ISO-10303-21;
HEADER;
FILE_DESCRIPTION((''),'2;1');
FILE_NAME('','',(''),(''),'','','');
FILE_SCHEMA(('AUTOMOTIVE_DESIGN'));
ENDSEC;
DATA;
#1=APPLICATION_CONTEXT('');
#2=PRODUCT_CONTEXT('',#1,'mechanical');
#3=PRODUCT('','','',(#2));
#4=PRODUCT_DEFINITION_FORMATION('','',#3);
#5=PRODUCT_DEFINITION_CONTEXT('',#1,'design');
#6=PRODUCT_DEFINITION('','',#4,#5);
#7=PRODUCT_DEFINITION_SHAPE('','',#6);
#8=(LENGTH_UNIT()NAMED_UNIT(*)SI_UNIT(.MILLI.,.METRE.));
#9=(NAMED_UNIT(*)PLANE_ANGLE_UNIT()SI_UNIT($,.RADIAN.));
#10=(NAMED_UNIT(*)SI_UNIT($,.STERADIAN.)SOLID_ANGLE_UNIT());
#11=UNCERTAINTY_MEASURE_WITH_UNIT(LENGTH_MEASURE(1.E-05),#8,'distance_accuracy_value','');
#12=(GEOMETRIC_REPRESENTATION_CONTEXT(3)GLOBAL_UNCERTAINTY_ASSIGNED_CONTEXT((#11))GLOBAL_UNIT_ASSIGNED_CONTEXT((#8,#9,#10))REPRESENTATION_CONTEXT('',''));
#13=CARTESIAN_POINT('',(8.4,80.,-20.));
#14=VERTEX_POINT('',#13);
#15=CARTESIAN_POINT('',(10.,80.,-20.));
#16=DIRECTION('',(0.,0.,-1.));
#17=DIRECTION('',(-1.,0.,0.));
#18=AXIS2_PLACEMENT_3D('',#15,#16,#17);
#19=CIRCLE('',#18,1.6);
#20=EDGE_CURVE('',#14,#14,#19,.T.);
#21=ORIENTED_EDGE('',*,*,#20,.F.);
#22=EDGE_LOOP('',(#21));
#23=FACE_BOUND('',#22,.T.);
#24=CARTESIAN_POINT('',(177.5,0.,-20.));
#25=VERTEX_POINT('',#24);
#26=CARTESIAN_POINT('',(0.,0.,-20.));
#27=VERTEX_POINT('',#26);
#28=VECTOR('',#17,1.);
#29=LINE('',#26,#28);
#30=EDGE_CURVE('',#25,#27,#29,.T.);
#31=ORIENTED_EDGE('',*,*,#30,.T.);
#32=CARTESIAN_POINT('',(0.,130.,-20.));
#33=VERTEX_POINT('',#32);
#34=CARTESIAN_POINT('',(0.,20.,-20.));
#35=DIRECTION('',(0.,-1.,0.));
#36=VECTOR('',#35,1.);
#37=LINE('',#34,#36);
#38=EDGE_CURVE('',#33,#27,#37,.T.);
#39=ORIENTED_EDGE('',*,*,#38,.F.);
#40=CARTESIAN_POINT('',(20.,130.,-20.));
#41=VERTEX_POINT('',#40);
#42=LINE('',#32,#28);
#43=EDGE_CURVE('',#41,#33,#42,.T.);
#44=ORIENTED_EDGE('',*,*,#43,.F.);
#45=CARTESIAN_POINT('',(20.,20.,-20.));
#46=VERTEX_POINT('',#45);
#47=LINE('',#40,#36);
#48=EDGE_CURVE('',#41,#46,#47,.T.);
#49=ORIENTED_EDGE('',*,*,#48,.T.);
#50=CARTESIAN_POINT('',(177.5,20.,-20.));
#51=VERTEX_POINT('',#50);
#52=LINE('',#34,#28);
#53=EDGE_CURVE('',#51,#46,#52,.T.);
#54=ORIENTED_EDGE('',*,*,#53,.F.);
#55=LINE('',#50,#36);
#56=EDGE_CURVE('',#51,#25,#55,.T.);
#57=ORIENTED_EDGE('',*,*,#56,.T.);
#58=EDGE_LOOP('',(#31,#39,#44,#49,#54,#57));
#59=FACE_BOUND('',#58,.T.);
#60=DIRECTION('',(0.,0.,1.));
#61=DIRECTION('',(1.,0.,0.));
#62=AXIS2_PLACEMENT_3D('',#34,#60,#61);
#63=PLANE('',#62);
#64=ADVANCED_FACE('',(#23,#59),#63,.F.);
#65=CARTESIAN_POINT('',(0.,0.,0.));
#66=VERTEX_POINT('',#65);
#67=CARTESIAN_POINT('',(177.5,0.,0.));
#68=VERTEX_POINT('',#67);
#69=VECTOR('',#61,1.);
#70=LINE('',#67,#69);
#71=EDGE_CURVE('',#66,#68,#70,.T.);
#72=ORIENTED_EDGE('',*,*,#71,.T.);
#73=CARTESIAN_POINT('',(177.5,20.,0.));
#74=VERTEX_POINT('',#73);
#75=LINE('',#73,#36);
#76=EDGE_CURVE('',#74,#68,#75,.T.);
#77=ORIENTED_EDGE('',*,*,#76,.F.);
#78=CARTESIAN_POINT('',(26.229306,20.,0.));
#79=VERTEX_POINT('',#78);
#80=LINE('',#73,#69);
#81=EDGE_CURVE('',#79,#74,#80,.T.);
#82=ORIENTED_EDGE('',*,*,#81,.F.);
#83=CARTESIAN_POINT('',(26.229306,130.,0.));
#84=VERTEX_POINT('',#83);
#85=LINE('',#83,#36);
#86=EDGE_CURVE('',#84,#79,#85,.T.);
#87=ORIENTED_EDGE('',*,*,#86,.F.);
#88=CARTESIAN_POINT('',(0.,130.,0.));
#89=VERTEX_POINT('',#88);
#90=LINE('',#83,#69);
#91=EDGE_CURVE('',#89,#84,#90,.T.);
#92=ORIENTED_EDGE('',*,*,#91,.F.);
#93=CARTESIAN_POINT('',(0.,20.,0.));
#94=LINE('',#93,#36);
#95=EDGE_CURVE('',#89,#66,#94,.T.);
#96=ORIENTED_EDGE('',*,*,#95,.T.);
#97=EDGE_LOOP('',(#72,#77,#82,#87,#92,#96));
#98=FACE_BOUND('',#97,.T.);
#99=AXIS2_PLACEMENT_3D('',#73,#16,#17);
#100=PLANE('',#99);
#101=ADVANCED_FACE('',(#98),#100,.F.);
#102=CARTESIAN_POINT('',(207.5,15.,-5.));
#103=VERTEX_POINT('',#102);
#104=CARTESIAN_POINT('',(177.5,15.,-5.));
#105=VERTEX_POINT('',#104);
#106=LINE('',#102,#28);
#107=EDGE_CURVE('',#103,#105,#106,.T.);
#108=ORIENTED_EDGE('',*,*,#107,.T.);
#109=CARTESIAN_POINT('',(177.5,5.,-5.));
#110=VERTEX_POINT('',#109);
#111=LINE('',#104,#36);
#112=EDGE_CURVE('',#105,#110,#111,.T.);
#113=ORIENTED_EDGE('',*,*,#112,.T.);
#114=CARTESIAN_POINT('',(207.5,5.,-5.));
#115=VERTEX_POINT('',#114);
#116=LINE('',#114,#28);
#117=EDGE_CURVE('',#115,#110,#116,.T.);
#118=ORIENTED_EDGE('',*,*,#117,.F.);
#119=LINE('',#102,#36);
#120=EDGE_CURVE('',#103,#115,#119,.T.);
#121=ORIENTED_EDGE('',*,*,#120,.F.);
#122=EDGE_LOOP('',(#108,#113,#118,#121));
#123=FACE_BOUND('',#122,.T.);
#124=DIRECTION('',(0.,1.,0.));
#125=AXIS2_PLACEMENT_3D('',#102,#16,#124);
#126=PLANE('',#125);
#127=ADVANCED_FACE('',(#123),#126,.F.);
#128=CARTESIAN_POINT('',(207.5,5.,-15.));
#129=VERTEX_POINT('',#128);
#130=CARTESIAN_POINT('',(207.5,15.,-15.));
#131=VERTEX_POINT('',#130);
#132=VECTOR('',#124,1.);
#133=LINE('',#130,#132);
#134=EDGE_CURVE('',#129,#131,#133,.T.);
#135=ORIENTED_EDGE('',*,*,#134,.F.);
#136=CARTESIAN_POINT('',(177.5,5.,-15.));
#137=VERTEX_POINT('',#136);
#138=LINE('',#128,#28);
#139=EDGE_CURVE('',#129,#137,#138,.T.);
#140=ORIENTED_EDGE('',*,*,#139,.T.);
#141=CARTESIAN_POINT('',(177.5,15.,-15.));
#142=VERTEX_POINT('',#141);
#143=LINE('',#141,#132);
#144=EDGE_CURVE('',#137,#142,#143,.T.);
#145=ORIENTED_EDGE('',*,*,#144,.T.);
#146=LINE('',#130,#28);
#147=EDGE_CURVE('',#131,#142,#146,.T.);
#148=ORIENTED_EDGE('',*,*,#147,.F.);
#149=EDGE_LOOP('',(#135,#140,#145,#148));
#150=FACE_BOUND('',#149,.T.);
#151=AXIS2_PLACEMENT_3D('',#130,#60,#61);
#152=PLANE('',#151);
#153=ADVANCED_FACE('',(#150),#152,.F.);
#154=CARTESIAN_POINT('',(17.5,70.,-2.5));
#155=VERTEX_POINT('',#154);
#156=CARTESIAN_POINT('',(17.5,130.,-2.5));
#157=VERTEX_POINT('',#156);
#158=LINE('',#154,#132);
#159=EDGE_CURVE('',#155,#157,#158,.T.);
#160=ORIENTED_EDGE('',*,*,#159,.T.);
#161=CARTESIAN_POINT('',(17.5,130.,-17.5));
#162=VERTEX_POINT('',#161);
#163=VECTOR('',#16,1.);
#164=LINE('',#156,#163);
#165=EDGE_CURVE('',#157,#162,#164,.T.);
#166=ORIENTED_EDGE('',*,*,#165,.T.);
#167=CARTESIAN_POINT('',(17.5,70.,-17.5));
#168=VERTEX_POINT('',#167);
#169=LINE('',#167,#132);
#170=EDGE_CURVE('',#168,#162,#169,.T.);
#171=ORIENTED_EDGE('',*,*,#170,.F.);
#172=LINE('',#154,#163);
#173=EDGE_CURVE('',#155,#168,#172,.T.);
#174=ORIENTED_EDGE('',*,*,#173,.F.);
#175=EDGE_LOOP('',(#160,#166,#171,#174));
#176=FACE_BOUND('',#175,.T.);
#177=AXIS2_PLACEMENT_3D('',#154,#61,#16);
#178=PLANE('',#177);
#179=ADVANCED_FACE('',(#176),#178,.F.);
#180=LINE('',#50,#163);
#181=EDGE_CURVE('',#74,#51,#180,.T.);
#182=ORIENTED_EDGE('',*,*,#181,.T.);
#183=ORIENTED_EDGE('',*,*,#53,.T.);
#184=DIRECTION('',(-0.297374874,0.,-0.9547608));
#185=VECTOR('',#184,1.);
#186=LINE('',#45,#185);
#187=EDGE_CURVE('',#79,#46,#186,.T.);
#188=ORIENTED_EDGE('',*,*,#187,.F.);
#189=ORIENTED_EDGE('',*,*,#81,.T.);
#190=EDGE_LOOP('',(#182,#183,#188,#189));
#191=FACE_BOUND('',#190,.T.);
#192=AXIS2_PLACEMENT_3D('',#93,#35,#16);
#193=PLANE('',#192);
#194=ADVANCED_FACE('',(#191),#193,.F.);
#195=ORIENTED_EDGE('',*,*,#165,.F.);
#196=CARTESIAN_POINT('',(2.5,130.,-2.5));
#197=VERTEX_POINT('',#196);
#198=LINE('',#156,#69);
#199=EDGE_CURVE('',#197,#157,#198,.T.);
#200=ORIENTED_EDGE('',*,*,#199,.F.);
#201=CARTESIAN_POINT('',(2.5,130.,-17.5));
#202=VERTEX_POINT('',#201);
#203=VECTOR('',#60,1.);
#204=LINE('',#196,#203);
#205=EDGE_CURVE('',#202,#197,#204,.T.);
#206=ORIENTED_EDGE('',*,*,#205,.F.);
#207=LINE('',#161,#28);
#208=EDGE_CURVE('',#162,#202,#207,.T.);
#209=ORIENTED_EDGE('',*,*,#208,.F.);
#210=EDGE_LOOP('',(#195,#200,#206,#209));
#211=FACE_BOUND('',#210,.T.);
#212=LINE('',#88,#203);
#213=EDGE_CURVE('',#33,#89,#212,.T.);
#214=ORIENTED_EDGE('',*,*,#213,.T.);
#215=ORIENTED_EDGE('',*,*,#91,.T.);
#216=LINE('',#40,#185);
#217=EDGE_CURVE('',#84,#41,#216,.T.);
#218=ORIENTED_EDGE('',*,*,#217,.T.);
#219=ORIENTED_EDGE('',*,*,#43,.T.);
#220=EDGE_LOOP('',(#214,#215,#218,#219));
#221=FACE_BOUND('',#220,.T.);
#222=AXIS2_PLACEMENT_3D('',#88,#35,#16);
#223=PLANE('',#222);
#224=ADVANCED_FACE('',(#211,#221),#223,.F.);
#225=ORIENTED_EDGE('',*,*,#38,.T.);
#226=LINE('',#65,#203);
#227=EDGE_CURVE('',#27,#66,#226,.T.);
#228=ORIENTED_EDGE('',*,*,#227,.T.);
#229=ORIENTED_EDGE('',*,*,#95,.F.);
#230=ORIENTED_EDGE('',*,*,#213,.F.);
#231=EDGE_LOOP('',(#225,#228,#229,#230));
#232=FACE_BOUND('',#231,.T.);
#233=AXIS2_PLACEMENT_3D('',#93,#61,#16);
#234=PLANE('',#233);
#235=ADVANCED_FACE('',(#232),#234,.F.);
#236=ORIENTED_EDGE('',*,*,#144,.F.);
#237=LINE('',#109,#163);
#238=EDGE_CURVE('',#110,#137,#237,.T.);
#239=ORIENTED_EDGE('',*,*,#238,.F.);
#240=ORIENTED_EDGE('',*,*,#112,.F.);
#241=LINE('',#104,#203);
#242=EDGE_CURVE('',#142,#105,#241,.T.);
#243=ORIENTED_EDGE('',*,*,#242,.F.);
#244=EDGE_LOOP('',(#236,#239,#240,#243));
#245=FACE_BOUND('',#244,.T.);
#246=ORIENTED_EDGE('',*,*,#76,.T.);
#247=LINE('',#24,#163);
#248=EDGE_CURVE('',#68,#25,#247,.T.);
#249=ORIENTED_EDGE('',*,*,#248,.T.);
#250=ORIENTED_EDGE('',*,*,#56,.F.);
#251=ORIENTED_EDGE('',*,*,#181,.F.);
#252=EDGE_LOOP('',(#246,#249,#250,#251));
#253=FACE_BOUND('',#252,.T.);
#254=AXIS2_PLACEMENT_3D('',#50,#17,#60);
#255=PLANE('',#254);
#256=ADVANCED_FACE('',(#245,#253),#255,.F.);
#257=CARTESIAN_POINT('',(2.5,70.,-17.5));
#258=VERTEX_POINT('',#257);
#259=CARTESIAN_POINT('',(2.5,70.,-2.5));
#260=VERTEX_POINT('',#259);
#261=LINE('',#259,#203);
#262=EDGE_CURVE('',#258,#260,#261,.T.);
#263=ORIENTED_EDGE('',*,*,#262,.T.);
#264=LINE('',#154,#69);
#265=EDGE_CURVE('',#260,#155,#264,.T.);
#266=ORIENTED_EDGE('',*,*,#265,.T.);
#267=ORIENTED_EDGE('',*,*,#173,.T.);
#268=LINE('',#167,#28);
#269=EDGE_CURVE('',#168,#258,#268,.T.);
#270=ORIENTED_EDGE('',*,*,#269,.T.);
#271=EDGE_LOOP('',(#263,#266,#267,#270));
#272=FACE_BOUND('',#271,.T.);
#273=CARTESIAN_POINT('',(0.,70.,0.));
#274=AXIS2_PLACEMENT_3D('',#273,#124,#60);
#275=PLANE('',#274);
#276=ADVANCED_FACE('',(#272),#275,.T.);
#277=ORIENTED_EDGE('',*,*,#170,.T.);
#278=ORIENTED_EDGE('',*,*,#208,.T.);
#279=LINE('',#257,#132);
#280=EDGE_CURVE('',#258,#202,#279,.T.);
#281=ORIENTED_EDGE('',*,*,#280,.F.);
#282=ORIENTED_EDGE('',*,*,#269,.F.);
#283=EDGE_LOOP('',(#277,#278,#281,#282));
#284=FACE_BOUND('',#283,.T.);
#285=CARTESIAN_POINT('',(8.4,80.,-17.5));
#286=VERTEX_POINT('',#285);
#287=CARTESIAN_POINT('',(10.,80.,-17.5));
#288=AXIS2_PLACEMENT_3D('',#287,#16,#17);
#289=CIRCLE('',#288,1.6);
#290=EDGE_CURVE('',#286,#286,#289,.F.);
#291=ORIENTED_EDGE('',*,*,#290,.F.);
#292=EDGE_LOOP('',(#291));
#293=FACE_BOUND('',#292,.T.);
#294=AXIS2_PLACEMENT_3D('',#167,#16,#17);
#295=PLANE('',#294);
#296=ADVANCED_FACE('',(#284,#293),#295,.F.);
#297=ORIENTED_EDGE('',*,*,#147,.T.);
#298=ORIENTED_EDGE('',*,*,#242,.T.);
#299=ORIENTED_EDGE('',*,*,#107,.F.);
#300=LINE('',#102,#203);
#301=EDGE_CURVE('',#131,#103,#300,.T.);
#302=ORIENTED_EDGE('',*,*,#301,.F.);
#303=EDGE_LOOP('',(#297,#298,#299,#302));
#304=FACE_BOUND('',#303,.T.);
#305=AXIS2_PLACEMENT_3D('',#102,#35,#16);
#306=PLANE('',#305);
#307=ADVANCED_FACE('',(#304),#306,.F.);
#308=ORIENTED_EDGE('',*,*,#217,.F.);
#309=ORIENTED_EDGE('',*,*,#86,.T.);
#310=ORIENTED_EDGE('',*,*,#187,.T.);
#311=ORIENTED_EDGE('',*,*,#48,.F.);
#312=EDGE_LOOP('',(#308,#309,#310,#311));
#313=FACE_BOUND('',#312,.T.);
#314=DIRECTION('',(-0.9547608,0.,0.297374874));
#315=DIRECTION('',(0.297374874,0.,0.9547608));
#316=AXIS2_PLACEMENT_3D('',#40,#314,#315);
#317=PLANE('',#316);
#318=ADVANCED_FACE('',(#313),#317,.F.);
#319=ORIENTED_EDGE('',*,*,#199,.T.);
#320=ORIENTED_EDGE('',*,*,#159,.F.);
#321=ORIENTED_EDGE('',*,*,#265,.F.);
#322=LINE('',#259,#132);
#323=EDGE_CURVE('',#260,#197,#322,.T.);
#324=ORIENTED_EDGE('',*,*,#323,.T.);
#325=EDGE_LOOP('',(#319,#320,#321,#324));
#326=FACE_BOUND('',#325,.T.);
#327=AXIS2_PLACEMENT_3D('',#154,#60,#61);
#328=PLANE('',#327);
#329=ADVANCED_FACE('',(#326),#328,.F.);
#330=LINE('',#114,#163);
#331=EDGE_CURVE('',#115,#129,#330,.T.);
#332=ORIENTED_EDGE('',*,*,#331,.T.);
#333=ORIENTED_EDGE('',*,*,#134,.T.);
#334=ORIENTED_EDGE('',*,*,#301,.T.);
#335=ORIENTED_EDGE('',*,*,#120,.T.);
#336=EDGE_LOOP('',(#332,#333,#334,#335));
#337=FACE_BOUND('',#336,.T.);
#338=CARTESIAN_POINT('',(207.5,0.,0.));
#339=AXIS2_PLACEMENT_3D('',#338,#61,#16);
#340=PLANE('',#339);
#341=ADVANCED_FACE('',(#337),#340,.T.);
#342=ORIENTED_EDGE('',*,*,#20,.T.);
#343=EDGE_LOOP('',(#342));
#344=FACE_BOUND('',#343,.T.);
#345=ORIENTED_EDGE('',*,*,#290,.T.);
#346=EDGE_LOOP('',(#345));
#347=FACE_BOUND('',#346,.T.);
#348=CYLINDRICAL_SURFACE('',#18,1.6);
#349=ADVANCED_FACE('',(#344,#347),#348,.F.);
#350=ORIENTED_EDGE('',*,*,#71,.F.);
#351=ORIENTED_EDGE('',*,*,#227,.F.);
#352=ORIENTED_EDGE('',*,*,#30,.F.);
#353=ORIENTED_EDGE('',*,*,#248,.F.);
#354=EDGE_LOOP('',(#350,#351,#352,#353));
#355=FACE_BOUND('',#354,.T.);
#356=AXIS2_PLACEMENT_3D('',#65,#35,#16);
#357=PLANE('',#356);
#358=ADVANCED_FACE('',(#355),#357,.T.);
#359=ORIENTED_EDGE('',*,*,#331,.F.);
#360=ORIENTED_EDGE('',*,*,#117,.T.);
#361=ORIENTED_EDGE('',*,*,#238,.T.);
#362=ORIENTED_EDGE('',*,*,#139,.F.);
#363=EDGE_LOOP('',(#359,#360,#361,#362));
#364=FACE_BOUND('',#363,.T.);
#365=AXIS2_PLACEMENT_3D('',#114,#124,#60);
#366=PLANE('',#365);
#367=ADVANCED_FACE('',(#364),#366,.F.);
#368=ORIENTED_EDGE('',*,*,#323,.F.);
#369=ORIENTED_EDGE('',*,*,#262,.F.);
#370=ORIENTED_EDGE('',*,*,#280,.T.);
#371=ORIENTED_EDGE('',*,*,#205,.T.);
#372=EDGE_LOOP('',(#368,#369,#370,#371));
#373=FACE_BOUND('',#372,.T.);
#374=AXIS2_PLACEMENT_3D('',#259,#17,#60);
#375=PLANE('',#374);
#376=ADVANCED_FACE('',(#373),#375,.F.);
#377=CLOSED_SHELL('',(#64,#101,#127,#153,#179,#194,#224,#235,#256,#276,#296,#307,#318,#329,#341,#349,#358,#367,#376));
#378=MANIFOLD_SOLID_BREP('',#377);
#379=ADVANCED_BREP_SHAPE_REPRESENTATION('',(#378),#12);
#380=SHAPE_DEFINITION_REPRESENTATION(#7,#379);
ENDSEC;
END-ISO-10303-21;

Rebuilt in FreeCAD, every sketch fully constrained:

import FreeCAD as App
import Part
import Sketcher

V = App.Vector
Q = App.Units.Quantity

doc = App.newDocument("Part")
body = doc.addObject("PartDesign::Body", "Body")

# Sketch on XZ plane
sketch1 = doc.addObject("Sketcher::SketchObject", "Sketch")
body.addObject(sketch1)
sketch1.AttachmentSupport = (doc.XZ_Plane, [""])
sketch1.MapMode = "FlatFace"
sketch1.addGeometry([
    Part.LineSegment(V(0, -20, 0), V(0, 0, 0)),
    Part.LineSegment(V(0, 0, 0), V(178, 0, 0)),
    Part.LineSegment(V(178, 0, 0), V(178, -20, 0)),
    Part.LineSegment(V(178, -20, 0), V(0, -20, 0)),
], False)
sketch1.addConstraint([
    Sketcher.Constraint("Coincident", 0, 2, 1, 1),
    Sketcher.Constraint("Coincident", 1, 2, 2, 1),
    Sketcher.Constraint("Coincident", 2, 2, 3, 1),
    Sketcher.Constraint("Coincident", 3, 2, 0, 1),
    Sketcher.Constraint("Vertical", 0),
    Sketcher.Constraint("Horizontal", 1),
    Sketcher.Constraint("Vertical", 2),
    Sketcher.Constraint("Horizontal", 3),
    Sketcher.Constraint("Coincident", 0, 2, -1, 1),
    Sketcher.Constraint("DistanceY", 0, 1, 0, 2, 20.0),
    Sketcher.Constraint("DistanceX", 1, 1, 1, 2, 177.5),
])
pad1 = doc.addObject("PartDesign::Pad", "Pad")
body.addObject(pad1)
pad1.Profile = sketch1
pad1.Length = 20
pad1.Reversed = True

# Sketch on XZ plane
sketch2 = doc.addObject("Sketcher::SketchObject", "Sketch001")
body.addObject(sketch2)
sketch2.AttachmentSupport = (doc.XZ_Plane, [""])
sketch2.MapMode = "FlatFace"
sketch2.AttachmentOffset = App.Placement(V(0, 0, -20), App.Rotation())
sketch2.addGeometry([
    Part.LineSegment(V(20, -20, 0), V(0, -20, 0)),
    Part.LineSegment(V(0, -20, 0), V(0, 0, 0)),
    Part.LineSegment(V(0, 0, 0), V(26, 0, 0)),
    Part.LineSegment(V(26, 0, 0), V(20, -20, 0)),
], False)
sketch2.addConstraint([
    Sketcher.Constraint("Coincident", 0, 2, 1, 1),
    Sketcher.Constraint("Coincident", 1, 2, 2, 1),
    Sketcher.Constraint("Coincident", 2, 2, 3, 1),
    Sketcher.Constraint("Coincident", 3, 2, 0, 1),
    Sketcher.Constraint("Horizontal", 0),
    Sketcher.Constraint("Vertical", 1),
    Sketcher.Constraint("Horizontal", 2),
    Sketcher.Constraint("Coincident", 1, 2, -1, 1),
    Sketcher.Constraint("Equal", 0, 1),
    Sketcher.Constraint("DistanceX", 0, 2, 0, 1, 20.0),
    Sketcher.Constraint("Angle", 3, Q("-107.3 deg")),
])
pad2 = doc.addObject("PartDesign::Pad", "Pad001")
body.addObject(pad2)
pad2.Profile = sketch2
pad2.Length = 110
pad2.Reversed = True

# Sketch on YZ plane
sketch3 = doc.addObject("Sketcher::SketchObject", "Sketch002")
body.addObject(sketch3)
sketch3.AttachmentSupport = (doc.YZ_Plane, [""])
sketch3.MapMode = "FlatFace"
sketch3.AttachmentOffset = App.Placement(V(0, 0, 177.5), App.Rotation())
sketch3.addGeometry([
    Part.LineSegment(V(15, -5, 0), V(5, -5, 0)),
    Part.LineSegment(V(5, -5, 0), V(5, -15, 0)),
    Part.LineSegment(V(5, -15, 0), V(15, -15, 0)),
    Part.LineSegment(V(15, -15, 0), V(15, -5, 0)),
], False)
sketch3.addConstraint([
    Sketcher.Constraint("Coincident", 0, 2, 1, 1),
    Sketcher.Constraint("Coincident", 1, 2, 2, 1),
    Sketcher.Constraint("Coincident", 2, 2, 3, 1),
    Sketcher.Constraint("Coincident", 3, 2, 0, 1),
    Sketcher.Constraint("Horizontal", 0),
    Sketcher.Constraint("Vertical", 1),
    Sketcher.Constraint("Horizontal", 2),
    Sketcher.Constraint("Vertical", 3),
    Sketcher.Constraint("Equal", 2, 1),
    Sketcher.Constraint("DistanceX", 0, 2, 0, 1, 10.0),
    Sketcher.Constraint("DistanceX", -1, 1, 0, 2, 5.0),
    Sketcher.Constraint("DistanceY", 0, 2, -1, 1, 5.0),
])
pad3 = doc.addObject("PartDesign::Pad", "Pad002")
body.addObject(pad3)
pad3.Profile = sketch3
pad3.Length = 30

# Sketch on XY plane
sketch4 = doc.addObject("Sketcher::SketchObject", "Sketch003")
body.addObject(sketch4)
sketch4.AttachmentSupport = (doc.XY_Plane, [""])
sketch4.MapMode = "FlatFace"
sketch4.AttachmentOffset = App.Placement(V(0, 0, -20), App.Rotation())
sketch4.addGeometry(Part.Circle(V(10, 80, 0), V(0, 0, 1), 1.6), False)
sketch4.addConstraint([
    Sketcher.Constraint("Diameter", 0, 3.2),
    Sketcher.Constraint("DistanceX", -1, 1, 0, 3, 10.0),
    Sketcher.Constraint("DistanceY", -1, 1, 0, 3, 80.0),
])
doc.recompute()
hole = doc.addObject("PartDesign::Hole", "Hole")
body.addObject(hole)
hole.Profile = sketch4
hole.ThreadType = "None"
hole.Diameter = 3.2
hole.DepthType = "Dimension"
hole.Depth = 10
hole.DrillPoint = "Angled"
hole.DrillPointAngle = 118
hole.Reversed = True

# Sketch on XZ plane
sketch5 = doc.addObject("Sketcher::SketchObject", "Sketch004")
body.addObject(sketch5)
sketch5.AttachmentSupport = (doc.XZ_Plane, [""])
sketch5.MapMode = "FlatFace"
sketch5.AttachmentOffset = App.Placement(V(0, 0, -130), App.Rotation())
sketch5.addGeometry([
    Part.LineSegment(V(2, -18, 0), V(2, -2, 0)),
    Part.LineSegment(V(2, -2, 0), V(18, -2, 0)),
    Part.LineSegment(V(18, -2, 0), V(18, -18, 0)),
    Part.LineSegment(V(18, -18, 0), V(2, -18, 0)),
], False)
sketch5.addConstraint([
    Sketcher.Constraint("Coincident", 0, 2, 1, 1),
    Sketcher.Constraint("Coincident", 1, 2, 2, 1),
    Sketcher.Constraint("Coincident", 2, 2, 3, 1),
    Sketcher.Constraint("Coincident", 3, 2, 0, 1),
    Sketcher.Constraint("Vertical", 0),
    Sketcher.Constraint("Horizontal", 1),
    Sketcher.Constraint("Vertical", 2),
    Sketcher.Constraint("Horizontal", 3),
    Sketcher.Constraint("Equal", 3, 0),
    Sketcher.Constraint("DistanceX", 1, 1, 1, 2, 15.0),
    Sketcher.Constraint("DistanceX", -1, 1, 0, 2, 2.5),
    Sketcher.Constraint("DistanceY", 0, 2, -1, 1, 2.5),
])
pocket1 = doc.addObject("PartDesign::Pocket", "Pocket")
body.addObject(pocket1)
pocket1.Profile = sketch5
pocket1.Length = 60
pocket1.Reversed = True

doc.recompute()
